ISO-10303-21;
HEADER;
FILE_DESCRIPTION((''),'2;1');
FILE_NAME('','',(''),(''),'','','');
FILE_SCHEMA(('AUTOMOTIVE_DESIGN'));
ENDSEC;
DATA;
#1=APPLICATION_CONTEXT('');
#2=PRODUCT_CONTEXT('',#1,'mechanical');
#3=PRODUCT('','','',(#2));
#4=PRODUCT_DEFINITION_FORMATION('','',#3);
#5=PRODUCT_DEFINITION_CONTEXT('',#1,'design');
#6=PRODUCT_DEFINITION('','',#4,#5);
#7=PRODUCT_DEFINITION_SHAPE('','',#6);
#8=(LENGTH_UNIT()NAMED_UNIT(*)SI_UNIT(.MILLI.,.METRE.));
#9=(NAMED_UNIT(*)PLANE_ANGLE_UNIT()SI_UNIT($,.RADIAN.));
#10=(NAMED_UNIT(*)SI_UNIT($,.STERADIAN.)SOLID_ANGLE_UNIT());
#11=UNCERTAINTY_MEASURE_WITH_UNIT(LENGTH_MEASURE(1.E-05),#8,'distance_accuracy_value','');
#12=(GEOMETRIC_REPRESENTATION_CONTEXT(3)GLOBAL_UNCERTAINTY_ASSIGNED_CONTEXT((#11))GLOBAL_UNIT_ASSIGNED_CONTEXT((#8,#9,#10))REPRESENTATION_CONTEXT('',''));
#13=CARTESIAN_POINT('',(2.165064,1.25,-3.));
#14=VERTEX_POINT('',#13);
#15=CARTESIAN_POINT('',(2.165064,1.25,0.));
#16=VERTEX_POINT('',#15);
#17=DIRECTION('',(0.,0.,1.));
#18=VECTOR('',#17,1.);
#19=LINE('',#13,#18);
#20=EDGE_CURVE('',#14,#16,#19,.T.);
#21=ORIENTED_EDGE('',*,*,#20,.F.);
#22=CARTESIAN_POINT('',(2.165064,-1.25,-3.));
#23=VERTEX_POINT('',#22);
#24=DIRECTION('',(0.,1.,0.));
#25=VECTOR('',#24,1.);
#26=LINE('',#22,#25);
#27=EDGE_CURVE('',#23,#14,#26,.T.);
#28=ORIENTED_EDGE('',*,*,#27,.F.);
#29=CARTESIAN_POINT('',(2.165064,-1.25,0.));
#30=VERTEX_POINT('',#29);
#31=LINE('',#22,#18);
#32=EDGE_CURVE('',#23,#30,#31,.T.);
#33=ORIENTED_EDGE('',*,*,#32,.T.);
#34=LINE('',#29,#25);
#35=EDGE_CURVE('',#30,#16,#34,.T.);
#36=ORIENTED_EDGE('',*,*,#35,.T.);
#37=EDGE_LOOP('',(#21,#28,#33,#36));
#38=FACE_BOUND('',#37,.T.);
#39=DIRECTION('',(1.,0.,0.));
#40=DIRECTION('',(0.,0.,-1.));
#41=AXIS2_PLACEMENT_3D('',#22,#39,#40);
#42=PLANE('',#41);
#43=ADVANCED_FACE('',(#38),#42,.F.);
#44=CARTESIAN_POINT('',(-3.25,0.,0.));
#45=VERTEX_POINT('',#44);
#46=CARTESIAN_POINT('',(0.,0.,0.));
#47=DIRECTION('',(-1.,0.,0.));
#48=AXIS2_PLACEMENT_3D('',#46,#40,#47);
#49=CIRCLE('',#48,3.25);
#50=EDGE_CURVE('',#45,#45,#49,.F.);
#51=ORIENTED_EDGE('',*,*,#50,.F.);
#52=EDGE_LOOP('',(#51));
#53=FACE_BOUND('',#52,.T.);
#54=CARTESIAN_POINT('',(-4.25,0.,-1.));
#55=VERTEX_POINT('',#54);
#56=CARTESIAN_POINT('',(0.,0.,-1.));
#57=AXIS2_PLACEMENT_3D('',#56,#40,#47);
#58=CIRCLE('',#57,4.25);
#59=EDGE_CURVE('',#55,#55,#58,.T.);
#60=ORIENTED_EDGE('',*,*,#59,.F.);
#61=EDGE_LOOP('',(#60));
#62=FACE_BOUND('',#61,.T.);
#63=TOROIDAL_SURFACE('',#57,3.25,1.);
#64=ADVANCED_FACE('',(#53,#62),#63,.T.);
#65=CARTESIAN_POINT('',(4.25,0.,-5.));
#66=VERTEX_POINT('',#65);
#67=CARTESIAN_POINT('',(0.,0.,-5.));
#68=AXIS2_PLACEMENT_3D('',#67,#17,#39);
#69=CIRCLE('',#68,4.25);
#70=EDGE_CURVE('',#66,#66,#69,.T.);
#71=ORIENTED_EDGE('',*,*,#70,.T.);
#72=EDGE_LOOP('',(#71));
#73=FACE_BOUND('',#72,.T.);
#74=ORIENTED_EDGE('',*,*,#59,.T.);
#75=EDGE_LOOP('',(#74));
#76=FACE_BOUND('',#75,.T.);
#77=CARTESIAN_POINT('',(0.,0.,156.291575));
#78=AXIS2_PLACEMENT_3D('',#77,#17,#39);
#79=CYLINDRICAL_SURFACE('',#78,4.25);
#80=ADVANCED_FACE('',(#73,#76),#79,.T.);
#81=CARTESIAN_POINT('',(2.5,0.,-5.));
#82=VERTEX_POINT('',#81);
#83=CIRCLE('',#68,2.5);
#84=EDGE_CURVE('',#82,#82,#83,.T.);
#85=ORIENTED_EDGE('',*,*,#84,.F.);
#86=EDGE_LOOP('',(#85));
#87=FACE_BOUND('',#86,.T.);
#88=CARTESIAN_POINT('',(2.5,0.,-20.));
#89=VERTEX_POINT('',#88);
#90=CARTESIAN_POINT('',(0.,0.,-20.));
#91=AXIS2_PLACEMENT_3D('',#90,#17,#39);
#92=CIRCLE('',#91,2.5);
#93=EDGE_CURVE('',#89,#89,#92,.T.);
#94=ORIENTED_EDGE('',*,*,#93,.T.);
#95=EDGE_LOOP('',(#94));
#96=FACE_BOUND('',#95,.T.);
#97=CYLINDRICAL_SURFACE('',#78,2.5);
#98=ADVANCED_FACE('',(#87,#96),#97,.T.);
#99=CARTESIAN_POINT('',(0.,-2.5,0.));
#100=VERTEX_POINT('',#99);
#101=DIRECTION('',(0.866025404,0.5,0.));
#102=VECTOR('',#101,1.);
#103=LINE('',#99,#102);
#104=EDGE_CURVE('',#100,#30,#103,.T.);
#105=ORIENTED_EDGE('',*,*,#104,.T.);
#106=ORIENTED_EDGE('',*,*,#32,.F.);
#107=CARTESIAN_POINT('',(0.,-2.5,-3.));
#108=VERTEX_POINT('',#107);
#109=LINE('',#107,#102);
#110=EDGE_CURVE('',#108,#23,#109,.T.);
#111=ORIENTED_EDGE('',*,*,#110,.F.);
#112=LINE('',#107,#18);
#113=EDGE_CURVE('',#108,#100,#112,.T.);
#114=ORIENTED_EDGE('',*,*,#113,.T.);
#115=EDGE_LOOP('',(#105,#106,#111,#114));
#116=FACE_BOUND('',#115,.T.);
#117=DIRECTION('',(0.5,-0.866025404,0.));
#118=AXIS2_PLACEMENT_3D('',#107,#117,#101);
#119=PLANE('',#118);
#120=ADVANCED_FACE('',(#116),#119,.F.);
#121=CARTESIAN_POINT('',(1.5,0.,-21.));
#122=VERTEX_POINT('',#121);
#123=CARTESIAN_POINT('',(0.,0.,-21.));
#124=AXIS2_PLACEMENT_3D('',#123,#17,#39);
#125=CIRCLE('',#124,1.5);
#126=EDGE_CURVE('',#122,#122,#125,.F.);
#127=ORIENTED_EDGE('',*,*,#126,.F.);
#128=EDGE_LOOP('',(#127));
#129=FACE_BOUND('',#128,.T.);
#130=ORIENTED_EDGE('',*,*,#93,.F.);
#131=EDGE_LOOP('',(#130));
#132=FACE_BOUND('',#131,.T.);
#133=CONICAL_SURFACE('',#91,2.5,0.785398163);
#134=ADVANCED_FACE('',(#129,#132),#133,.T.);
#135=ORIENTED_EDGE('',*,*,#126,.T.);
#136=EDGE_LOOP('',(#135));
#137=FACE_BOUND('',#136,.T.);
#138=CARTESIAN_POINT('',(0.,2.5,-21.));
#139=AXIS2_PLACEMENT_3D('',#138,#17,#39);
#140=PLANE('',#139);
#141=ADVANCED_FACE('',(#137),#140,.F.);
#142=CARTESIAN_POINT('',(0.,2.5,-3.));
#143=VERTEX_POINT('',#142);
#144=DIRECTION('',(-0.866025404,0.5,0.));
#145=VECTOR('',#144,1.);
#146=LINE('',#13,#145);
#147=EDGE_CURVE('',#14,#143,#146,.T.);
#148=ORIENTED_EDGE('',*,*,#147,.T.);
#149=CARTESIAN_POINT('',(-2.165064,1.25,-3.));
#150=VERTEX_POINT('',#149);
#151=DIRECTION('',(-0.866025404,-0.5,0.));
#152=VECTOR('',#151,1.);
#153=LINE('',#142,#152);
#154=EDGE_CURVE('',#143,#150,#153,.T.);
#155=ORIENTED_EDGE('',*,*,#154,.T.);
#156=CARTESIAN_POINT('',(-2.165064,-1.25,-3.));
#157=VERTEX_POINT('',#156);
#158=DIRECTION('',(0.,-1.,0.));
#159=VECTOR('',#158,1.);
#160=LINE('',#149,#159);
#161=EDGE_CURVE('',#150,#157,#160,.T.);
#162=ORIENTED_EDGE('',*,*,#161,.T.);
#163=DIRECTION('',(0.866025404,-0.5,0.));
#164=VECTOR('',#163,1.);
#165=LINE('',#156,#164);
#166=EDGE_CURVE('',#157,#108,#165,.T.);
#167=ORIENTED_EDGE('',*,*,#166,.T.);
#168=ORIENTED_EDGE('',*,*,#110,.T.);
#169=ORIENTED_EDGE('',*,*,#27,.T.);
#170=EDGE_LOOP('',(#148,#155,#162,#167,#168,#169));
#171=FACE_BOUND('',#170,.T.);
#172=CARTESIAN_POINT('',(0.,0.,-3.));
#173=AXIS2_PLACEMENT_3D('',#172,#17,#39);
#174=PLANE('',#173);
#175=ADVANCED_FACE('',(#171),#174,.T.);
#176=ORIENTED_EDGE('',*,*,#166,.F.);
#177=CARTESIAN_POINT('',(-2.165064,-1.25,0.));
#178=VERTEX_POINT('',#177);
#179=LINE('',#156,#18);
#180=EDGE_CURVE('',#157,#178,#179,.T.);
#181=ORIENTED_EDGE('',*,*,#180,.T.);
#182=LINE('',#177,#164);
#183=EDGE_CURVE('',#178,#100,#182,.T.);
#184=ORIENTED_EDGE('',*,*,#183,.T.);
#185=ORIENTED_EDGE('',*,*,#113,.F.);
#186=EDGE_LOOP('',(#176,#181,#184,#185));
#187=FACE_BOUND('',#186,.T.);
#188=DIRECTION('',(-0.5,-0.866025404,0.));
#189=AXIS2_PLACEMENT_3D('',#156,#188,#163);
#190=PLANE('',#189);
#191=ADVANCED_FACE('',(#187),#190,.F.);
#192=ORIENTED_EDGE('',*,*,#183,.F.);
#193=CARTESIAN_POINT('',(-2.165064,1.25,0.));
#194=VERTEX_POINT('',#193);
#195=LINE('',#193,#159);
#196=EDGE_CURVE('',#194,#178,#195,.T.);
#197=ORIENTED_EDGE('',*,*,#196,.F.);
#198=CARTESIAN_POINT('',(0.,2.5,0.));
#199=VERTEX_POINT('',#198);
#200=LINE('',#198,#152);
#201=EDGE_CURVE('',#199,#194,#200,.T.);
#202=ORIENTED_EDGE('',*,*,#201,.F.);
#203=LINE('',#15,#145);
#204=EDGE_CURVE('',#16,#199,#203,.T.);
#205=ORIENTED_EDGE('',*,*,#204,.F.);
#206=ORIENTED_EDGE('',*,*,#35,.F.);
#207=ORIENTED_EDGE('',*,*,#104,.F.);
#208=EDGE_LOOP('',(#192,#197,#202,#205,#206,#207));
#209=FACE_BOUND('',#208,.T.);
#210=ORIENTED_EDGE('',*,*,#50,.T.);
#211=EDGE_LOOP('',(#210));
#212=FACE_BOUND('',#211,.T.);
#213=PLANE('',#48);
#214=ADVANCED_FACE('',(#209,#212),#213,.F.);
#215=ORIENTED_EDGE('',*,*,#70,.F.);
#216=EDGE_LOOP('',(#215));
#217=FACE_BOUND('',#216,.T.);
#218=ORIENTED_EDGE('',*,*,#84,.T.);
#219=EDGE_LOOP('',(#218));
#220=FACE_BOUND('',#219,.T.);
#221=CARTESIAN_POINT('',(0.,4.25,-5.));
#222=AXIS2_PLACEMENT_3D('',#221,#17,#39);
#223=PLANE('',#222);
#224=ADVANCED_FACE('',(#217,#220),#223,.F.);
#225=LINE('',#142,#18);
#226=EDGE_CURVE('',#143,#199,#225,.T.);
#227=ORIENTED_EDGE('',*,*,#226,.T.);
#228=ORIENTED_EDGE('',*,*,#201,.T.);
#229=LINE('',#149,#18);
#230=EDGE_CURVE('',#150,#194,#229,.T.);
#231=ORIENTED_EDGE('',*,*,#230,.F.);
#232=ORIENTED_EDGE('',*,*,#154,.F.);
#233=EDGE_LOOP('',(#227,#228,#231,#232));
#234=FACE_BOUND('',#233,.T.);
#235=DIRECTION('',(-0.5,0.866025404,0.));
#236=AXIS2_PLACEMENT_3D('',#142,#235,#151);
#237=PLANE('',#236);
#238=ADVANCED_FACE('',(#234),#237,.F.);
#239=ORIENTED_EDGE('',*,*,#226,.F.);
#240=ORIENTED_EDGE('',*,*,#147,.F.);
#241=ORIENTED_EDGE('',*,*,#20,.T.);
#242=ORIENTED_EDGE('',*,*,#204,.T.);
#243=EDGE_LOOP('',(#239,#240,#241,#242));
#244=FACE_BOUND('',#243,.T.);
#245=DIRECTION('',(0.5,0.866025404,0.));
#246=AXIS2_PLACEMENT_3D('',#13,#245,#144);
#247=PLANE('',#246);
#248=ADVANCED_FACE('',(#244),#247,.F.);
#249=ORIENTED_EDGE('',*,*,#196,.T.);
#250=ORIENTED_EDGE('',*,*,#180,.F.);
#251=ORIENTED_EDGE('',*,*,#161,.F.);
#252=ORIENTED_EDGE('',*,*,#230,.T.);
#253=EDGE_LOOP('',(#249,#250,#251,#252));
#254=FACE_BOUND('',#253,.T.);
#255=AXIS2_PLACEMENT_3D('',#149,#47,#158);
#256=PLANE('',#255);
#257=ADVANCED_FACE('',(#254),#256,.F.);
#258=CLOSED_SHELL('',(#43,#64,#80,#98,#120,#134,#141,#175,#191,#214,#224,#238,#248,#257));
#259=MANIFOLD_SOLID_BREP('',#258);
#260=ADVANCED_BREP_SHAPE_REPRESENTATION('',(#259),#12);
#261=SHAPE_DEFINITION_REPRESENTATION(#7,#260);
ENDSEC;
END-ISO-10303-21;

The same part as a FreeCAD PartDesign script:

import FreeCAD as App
import Part
import Sketcher
Q = App.Units.Quantity


def edges_at(feature, points):
    """Names of the edges that pass closest to the given points."""
    edges = feature.Shape.Edges
    near = lambda p: min(range(len(edges)), key=lambda i: edges[i].distToShape(Part.Vertex(*p))[0])
    return sorted({f"Edge{near(p) + 1}" for p in points})


def add_polygon(sketch, points):
    """Adds a closed chain of lines whose ends are joined by coincident constraints."""
    first, n = sketch.GeometryCount, len(points)
    for a, b in zip(points, points[1:] + points[:1]):
        sketch.addGeometry(Part.LineSegment(App.Vector(*a, 0), App.Vector(*b, 0)), False)
    for i in range(n):
        sketch.addConstraint(Sketcher.Constraint("Coincident", first + i, 2, first + (i + 1) % n, 1))

doc = App.newDocument("Part")
body = doc.addObject("PartDesign::Body", "Body")

# Sketch on YZ plane
sketch1 = body.newObject("Sketcher::SketchObject", "Sketch")
sketch1.AttachmentSupport = (doc.getObject("YZ_Plane"), [""])
sketch1.MapMode = "FlatFace"
add_polygon(sketch1, [(4.2, 0), (0, 0), (0, -21), (2.5, -21), (2.5, -5), (4.2, -5)])  # lines 0-5
sketch1.addConstraint([
    Sketcher.Constraint("Horizontal", 0),
    Sketcher.Constraint("Vertical", 1),
    Sketcher.Constraint("Horizontal", 2),
    Sketcher.Constraint("Vertical", 3),
    Sketcher.Constraint("Horizontal", 4),
    Sketcher.Constraint("Vertical", 5),
    Sketcher.Constraint("Coincident", 0, 2, -1, 1),
    Sketcher.Constraint("DistanceY", 1, 2, 1, 1, 21.0),
    Sketcher.Constraint("DistanceY", 3, 1, 3, 2, 16.0),
    Sketcher.Constraint("DistanceX", 2, 1, 2, 2, 2.5),
    Sketcher.Constraint("DistanceX", 0, 2, 0, 1, 4.25),
])
revolution = body.newObject("PartDesign::Revolution", "Revolution")
revolution.Profile = sketch1
revolution.ReferenceAxis = (sketch1, ["V_Axis"])
revolution.Angle = 360

# Sketch on XY plane
sketch2 = body.newObject("Sketcher::SketchObject", "Sketch001")
sketch2.AttachmentSupport = (doc.getObject("XY_Plane"), [""])
sketch2.MapMode = "FlatFace"
add_polygon(sketch2, [(0, 2.5), (-2.2, 1.2), (-2.2, -1.2), (0, -2.5), (2.2, -1.2), (2.2, 1.2)])  # lines 0-5
sketch2.addConstraint([
    Sketcher.Constraint("Vertical", 1),
    Sketcher.Constraint("Vertical", 4),
    Sketcher.Constraint("Symmetric", 0, 2, 3, 2, -1, 1),
    Sketcher.Constraint("Symmetric", 2, 2, 5, 2, -1, 1),
    Sketcher.Constraint("PointOnObject", 2, 2, -2),
    Sketcher.Constraint("Parallel", 2, 5),
    Sketcher.Constraint("Horizontal", 1, 2, 3, 2),
    Sketcher.Constraint("Angle", 0, Q("-150 deg")),
    Sketcher.Constraint("DistanceY", 1, 2, 1, 1, 2.5),
    Sketcher.Constraint("DistanceY", 2, 2, 5, 2, 5.0),
])
pocket1 = body.newObject("PartDesign::Pocket", "Pocket")
pocket1.Profile = sketch2
pocket1.Length = 3
doc.recompute()

chamfer = body.newObject("PartDesign::Chamfer", "Chamfer")
chamfer.Base = (pocket1, edges_at(pocket1, [(-2.5, 0, -21)]))
chamfer.Size = 1
doc.recompute()

fillet = body.newObject("PartDesign::Fillet", "Fillet")
fillet.Base = (chamfer, edges_at(chamfer, [(-4.25, 0, 0)]))
fillet.Radius = 1

doc.recompute()
